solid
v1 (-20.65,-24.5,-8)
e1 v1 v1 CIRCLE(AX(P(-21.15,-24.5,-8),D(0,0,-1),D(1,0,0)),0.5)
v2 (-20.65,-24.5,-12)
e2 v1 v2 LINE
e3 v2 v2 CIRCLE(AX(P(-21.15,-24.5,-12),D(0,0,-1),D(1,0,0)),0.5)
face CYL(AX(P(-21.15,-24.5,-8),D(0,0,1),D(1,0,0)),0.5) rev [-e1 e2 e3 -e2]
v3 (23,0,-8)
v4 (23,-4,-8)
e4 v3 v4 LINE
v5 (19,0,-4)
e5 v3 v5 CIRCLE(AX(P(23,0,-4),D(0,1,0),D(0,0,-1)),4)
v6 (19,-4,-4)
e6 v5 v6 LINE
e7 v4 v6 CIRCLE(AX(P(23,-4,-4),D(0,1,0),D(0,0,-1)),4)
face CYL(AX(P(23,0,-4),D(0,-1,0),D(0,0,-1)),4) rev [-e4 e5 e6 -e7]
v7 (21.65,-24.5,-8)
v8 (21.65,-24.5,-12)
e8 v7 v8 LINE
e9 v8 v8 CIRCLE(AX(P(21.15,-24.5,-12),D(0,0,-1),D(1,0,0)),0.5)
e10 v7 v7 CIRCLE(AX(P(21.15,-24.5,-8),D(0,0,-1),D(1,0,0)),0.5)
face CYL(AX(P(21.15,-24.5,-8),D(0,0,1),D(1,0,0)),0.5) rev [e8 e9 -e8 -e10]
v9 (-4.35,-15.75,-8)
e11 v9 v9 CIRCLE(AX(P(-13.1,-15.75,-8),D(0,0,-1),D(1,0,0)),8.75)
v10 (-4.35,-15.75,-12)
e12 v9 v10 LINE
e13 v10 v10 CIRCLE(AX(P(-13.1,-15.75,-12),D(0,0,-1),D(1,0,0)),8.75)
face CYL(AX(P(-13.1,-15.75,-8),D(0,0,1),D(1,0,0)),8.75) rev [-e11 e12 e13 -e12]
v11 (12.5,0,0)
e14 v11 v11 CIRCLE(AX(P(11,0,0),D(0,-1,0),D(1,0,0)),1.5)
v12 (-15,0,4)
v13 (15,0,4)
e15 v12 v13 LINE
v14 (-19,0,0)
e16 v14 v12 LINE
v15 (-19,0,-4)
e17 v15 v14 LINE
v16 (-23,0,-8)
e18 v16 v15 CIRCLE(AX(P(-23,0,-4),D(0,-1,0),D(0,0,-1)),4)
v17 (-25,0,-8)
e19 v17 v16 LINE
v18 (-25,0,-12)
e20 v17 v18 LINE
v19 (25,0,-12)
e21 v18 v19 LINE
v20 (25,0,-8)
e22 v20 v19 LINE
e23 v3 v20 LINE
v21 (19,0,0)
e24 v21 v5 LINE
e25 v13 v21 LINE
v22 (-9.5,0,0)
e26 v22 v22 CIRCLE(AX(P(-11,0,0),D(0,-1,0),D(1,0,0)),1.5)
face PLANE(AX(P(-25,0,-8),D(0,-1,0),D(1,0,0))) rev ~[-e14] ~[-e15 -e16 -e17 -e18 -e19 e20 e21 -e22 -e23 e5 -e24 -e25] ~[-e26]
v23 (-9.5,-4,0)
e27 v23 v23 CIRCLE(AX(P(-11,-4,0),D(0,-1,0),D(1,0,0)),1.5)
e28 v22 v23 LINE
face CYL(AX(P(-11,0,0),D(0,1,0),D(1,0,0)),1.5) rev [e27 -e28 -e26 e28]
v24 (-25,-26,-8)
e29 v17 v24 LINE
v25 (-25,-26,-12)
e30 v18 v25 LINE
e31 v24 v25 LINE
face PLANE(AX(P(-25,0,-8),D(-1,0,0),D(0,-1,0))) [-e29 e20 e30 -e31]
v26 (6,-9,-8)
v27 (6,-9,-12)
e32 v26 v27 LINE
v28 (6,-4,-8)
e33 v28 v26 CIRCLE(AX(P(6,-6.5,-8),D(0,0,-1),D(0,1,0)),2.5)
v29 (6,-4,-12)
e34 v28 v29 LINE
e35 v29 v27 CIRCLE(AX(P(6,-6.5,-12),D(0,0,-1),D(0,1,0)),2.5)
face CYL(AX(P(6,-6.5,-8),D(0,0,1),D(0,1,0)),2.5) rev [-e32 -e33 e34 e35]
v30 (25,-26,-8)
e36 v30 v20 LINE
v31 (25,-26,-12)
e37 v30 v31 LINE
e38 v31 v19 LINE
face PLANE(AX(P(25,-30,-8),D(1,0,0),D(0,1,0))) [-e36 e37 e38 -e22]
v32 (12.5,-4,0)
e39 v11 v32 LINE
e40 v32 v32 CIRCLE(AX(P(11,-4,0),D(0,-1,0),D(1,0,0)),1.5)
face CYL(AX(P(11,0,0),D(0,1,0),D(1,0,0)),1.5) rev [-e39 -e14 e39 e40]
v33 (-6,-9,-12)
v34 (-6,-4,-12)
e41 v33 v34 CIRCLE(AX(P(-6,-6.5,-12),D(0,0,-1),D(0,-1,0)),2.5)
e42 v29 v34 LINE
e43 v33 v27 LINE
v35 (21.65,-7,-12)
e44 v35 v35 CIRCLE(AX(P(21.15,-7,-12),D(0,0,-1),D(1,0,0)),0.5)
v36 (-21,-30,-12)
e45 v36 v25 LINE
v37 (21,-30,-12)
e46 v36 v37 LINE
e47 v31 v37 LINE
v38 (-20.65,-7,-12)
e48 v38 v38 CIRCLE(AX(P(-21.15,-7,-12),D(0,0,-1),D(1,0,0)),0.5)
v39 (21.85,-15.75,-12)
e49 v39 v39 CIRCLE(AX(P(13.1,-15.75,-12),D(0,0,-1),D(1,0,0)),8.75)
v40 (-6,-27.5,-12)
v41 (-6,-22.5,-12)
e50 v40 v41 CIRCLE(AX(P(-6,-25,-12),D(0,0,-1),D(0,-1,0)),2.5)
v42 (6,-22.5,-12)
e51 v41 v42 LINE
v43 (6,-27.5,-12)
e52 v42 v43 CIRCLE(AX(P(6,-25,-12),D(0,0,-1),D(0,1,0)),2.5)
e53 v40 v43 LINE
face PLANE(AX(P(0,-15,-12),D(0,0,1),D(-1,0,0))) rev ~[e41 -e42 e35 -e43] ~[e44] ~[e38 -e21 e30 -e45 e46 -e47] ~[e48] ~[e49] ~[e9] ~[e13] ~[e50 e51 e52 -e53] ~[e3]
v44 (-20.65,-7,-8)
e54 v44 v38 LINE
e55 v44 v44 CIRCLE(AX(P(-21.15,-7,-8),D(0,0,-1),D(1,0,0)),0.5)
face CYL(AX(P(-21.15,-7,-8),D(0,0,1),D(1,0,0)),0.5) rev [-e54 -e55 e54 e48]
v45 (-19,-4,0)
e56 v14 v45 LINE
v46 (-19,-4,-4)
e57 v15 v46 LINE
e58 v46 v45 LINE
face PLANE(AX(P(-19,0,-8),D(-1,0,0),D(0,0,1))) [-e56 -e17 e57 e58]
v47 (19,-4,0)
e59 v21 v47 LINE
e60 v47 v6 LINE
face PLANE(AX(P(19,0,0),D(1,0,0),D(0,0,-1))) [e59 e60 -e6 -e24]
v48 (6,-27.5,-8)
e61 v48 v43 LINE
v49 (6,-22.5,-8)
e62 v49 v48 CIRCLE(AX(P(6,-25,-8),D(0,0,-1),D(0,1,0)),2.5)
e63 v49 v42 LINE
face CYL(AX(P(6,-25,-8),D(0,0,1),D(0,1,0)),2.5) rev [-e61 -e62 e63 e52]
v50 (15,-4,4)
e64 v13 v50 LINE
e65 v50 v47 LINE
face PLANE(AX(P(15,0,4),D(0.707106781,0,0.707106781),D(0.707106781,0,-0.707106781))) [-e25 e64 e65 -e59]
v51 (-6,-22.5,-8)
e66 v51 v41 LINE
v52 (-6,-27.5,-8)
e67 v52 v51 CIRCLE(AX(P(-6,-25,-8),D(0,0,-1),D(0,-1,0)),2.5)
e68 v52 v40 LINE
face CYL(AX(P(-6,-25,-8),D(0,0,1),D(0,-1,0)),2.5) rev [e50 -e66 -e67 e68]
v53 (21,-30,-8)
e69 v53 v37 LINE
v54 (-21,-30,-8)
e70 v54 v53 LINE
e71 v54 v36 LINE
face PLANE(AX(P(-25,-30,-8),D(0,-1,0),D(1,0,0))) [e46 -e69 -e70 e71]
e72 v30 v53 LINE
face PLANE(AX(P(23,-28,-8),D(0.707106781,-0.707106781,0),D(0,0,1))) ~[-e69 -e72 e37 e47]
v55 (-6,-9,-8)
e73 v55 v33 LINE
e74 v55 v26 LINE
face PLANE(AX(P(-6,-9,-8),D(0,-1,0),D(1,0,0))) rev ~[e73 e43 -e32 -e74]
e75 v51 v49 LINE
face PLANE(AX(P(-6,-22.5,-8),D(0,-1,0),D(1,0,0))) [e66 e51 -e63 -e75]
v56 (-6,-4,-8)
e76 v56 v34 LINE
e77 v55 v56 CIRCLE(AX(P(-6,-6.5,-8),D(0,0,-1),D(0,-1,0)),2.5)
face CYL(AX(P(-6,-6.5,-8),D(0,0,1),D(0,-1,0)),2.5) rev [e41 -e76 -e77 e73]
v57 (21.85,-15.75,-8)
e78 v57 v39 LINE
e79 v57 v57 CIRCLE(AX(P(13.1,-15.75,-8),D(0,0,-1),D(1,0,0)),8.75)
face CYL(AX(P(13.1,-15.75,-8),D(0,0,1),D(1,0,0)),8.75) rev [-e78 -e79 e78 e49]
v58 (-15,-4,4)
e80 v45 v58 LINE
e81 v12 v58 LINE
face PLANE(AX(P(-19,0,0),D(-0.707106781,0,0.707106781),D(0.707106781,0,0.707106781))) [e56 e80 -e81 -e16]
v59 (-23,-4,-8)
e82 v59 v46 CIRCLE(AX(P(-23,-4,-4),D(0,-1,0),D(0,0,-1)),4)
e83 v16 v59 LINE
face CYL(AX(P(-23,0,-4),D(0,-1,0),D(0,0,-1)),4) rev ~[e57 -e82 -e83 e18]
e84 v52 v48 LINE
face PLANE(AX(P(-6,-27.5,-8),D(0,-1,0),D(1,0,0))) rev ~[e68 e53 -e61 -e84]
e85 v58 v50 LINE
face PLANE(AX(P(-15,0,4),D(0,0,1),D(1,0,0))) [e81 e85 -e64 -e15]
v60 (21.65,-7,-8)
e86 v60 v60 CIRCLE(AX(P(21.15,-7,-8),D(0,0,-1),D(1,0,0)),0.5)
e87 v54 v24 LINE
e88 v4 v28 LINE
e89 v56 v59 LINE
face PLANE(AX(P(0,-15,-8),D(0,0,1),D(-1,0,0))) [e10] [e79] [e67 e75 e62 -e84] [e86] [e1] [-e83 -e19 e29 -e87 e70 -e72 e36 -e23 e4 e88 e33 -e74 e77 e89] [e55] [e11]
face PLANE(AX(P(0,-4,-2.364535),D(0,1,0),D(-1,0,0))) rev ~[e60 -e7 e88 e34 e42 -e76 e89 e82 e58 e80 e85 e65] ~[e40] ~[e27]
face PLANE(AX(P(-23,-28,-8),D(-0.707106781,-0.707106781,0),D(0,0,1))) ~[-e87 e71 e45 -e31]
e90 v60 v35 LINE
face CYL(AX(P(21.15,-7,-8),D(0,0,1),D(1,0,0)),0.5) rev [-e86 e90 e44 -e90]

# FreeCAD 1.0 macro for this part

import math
import FreeCAD as App
import Part
import Sketcher


def edges_at(feature, points):
    """Names of the edges that pass closest to the given points."""
    edges = feature.Shape.Edges
    near = lambda p: min(range(len(edges)), key=lambda i: edges[i].distToShape(Part.Vertex(*p))[0])
    return sorted({f"Edge{near(p) + 1}" for p in points})


def add_polygon(sketch, points):
    """Adds a closed chain of lines whose ends are joined by coincident constraints."""
    first, n = sketch.GeometryCount, len(points)
    for a, b in zip(points, points[1:] + points[:1]):
        sketch.addGeometry(Part.LineSegment(App.Vector(*a, 0), App.Vector(*b, 0)), False)
    for i in range(n):
        sketch.addConstraint(Sketcher.Constraint("Coincident", first + i, 2, first + (i + 1) % n, 1))

doc = App.newDocument("Part")
body = doc.addObject("PartDesign::Body", "Body")

sketch1 = body.newObject("Sketcher::SketchObject", "Sketch")
sketch1.AttachmentSupport = (doc.getObject("XY_Plane"), [""])
sketch1.MapMode = "FlatFace"
add_polygon(sketch1, [(15, 4), (-15, 4), (-19, 0), (-19, -8), (19, -8), (19, 0)])
sketch1.addGeometry(Part.Circle(App.Vector(11, 0, 0), App.Vector(0, 0, 1), 1.5), False)
sketch1.addGeometry(Part.Circle(App.Vector(-11, 0, 0), App.Vector(0, 0, 1), 1.5), False)
sketch1.addConstraint([
    Sketcher.Constraint("Horizontal", 0),
    Sketcher.Constraint("Vertical", 2),
    Sketcher.Constraint("Horizontal", 3),
    Sketcher.Constraint("Vertical", 4),
    Sketcher.Constraint("Equal", 6, 7),
    Sketcher.Constraint("Symmetric", 6, 3, 7, 3, -1, 1),
    Sketcher.Constraint("Symmetric", 1, 2, 4, 2, -1, 1),
    Sketcher.Constraint("PointOnObject", 6, 3, -1),
    Sketcher.Constraint("PointOnObject", 1, 2, -1),
    Sketcher.Constraint("Perpendicular", 1, 5),
    Sketcher.Constraint("Equal", 1, 5),
    Sketcher.Constraint("Diameter", 6, 3.0),
    Sketcher.Constraint("DistanceX", 0, 2, 0, 1, 30.0),
    Sketcher.Constraint("DistanceX", 3, 1, 3, 2, 38.0),
    Sketcher.Constraint("DistanceY", 2, 2, 2, 1, 8.0),
    Sketcher.Constraint("DistanceX", -1, 1, 6, 3, 11.0),
])
pad1 = body.newObject("PartDesign::Pad", "Pad")
pad1.Profile = sketch1
pad1.Length = 4

sketch2 = body.newObject("Sketcher::SketchObject", "Sketch001")
sketch2.AttachmentSupport = (doc.getObject("XZ_Plane"), [""])
sketch2.MapMode = "FlatFace"
sketch2.AttachmentOffset = App.Placement(App.Vector(0, 0, 8), App.Rotation())
add_polygon(sketch2, [(25, 30), (-25, 30), (-25, 0), (25, 0)])
sketch2.addGeometry(Part.Circle(App.Vector(21.1, 7, 0), App.Vector(0, 0, 1), 0.5), False)
sketch2.addGeometry(Part.ArcOfCircle(Part.Circle(App.Vector(-6, 6.5, 0), App.Vector(0, 0, 1), 2.5), math.radians(90), math.radians(270)), False)
sketch2.addGeometry(Part.LineSegment(App.Vector(-6, 9, 0), App.Vector(6, 9, 0)), False)
sketch2.addGeometry(Part.ArcOfCircle(Part.Circle(App.Vector(6, 6.5, 0), App.Vector(0, 0, 1), 2.5), math.radians(-90), math.radians(90)), False)
sketch2.addGeometry(Part.LineSegment(App.Vector(6, 4, 0), App.Vector(-6, 4, 0)), False)
sketch2.addGeometry(Part.Circle(App.Vector(-21.1, 7, 0), App.Vector(0, 0, 1), 0.5), False)
sketch2.addGeometry(Part.Circle(App.Vector(13.1, 15.8, 0), App.Vector(0, 0, 1), 8.8), False)
sketch2.addGeometry(Part.Circle(App.Vector(21.1, 24.5, 0), App.Vector(0, 0, 1), 0.5), False)
sketch2.addGeometry(Part.Circle(App.Vector(-13.1, 15.8, 0), App.Vector(0, 0, 1), 8.8), False)
sketch2.addGeometry(Part.LineSegment(App.Vector(-6, 27.5, 0), App.Vector(6, 27.5, 0)), False)
sketch2.addGeometry(Part.ArcOfCircle(Part.Circle(App.Vector(6, 25, 0), App.Vector(0, 0, 1), 2.5), math.radians(-90), math.radians(90)), False)
sketch2.addGeometry(Part.LineSegment(App.Vector(6, 22.5, 0), App.Vector(-6, 22.5, 0)), False)
sketch2.addGeometry(Part.ArcOfCircle(Part.Circle(App.Vector(-6, 25, 0), App.Vector(0, 0, 1), 2.5), math.radians(90), math.radians(270)), False)
sketch2.addGeometry(Part.Circle(App.Vector(-21.1, 24.5, 0), App.Vector(0, 0, 1), 0.5), False)
sketch2.addConstraint([
    Sketcher.Constraint("Tangent", 5, 1, 6, 1),
    Sketcher.Constraint("Tangent", 6, 2, 7, 2),
    Sketcher.Constraint("Tangent", 7, 1, 8, 1),
    Sketcher.Constraint("Tangent", 8, 2, 5, 2),
    Sketcher.Constraint("Tangent", 13, 2, 14, 2),
    Sketcher.Constraint("Tangent", 14, 1, 15, 1),
    Sketcher.Constraint("Tangent", 15, 2, 16, 2),
    Sketcher.Constraint("Tangent", 16, 1, 13, 1),
    Sketcher.Constraint("Horizontal", 0),
    Sketcher.Constraint("Vertical", 1),
    Sketcher.Constraint("Horizontal", 2),
    Sketcher.Constraint("Vertical", 3),
    Sketcher.Constraint("Horizontal", 6),
    Sketcher.Constraint("Horizontal", 8),
    Sketcher.Constraint("Horizontal", 13),
    Sketcher.Constraint("Horizontal", 15),
    Sketcher.Constraint("Equal", 4, 9),
    Sketcher.Constraint("Equal", 9, 11),
    Sketcher.Constraint("Equal", 10, 12),
    Sketcher.Constraint("Equal", 7, 14),
    Sketcher.Constraint("Equal", 11, 17),
    Sketcher.Constraint("Symmetric", 1, 2, 2, 2, -1, 1),
    Sketcher.Constraint("Symmetric", 4, 3, 9, 3, -2),
    Sketcher.Constraint("Symmetric", 10, 3, 12, 3, -2),
    Sketcher.Constraint("Symmetric", 11, 3, 17, 3, -2),
    Sketcher.Constraint("Vertical", 4, 3, 11, 3),
    Sketcher.Constraint("Vertical", 7, 3, 14, 3),
    Sketcher.Constraint("Vertical", 5, 3, 16, 3),
    Sketcher.Constraint("Diameter", 4, 1.0),
    Sketcher.Constraint("Diameter", 10, 17.5),
    Sketcher.Constraint("Radius", 5, 2.5),
    Sketcher.Constraint("DistanceX", 0, 2, 0, 1, 50.0),
    Sketcher.Constraint("DistanceX", 6, 1, 6, 2, 12.0),
    Sketcher.Constraint("DistanceY", 1, 2, 1, 1, 30.0),
    Sketcher.Constraint("DistanceY", -1, 1, 4, 3, 7.0),
    Sketcher.Constraint("DistanceX", 5, 3, -1, 1, 6.0),
    Sketcher.Constraint("DistanceY", -1, 1, 14, 3, 25.0),
    Sketcher.Constraint("DistanceY", -1, 1, 5, 1, 9.0),
    Sketcher.Constraint("DistanceY", 7, 3, 11, 3, 18.0),
    Sketcher.Constraint("DistanceX", -1, 1, 10, 3, 13.1),
    Sketcher.Constraint("DistanceX", 9, 3, 4, 3, 42.3),
    Sketcher.Constraint("DistanceY", -1, 1, 10, 3, 15.75),
])
pad2 = body.newObject("PartDesign::Pad", "Pad001")
pad2.Profile = sketch2
pad2.Length = 4
doc.recompute()

fillet = body.newObject("PartDesign::Fillet", "Fillet")
fillet.Base = (pad2, edges_at(pad2, [(19, -8, 2), (-19, -8, 2)]))
fillet.Radius = 4
doc.recompute()

chamfer = body.newObject("PartDesign::Chamfer", "Chamfer")
chamfer.Base = (fillet, edges_at(fillet, [(-25, -10, 30), (25, -10, 30)]))
chamfer.Size = 4
body2 = doc.addObject("PartDesign::Body", "Body001")
doc.recompute()

body.Placement = App.Placement(App.Vector(0, 0, 0), App.Rotation(App.Vector(1, 0, 0), 90))
boolean = body2.newObject("PartDesign::Boolean", "Boolean")
boolean.Type = "Fuse"
boolean.addObjects([body])

doc.recompute()
